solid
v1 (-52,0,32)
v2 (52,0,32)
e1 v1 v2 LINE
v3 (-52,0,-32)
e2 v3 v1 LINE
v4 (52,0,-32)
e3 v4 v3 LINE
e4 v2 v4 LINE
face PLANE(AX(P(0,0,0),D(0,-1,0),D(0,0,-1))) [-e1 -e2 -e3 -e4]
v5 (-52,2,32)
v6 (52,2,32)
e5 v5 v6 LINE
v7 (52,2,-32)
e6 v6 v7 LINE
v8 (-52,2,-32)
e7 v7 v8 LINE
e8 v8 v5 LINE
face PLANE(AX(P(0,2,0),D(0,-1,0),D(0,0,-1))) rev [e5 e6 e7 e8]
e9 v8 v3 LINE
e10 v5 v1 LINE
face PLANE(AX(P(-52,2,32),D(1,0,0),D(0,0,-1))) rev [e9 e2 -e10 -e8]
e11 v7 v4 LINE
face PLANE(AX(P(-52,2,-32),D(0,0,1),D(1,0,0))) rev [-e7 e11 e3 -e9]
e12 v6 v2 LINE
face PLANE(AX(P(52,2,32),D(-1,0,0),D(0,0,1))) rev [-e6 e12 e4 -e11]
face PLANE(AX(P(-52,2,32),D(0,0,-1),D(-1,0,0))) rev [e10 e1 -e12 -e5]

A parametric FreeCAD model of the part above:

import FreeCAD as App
import Part
import Sketcher
from FreeCAD import Vector


def add_polygon(sketch, points):
    """Adds a closed chain of lines whose ends are joined by coincident constraints."""
    first, n = sketch.GeometryCount, len(points)
    for a, b in zip(points, points[1:] + points[:1]):
        sketch.addGeometry(Part.LineSegment(App.Vector(*a, 0), App.Vector(*b, 0)), False)
    for i in range(n):
        sketch.addConstraint(Sketcher.Constraint("Coincident", first + i, 2, first + (i + 1) % n, 1))

doc = App.newDocument("Part")
body = doc.addObject("PartDesign::Body", "Body")

# Sketch on XZ plane
sketch1 = body.newObject("Sketcher::SketchObject", "Sketch")
sketch1.AttachmentSupport = (doc.getObject("XZ_Plane"), [""])
sketch1.MapMode = "FlatFace"
add_polygon(sketch1, [(-52, -32), (-52, 32), (52, 32), (52, -32)])  # lines 0-3
sketch1.addConstraint([
    Sketcher.Constraint("Vertical", 0),
    Sketcher.Constraint("Horizontal", 1),
    Sketcher.Constraint("Vertical", 2),
    Sketcher.Constraint("Horizontal", 3),
    Sketcher.Constraint("Symmetric", 0, 2, 2, 2, -1, 1),
    Sketcher.Constraint("DistanceX", 1, 1, 1, 2, 104.0),
    Sketcher.Constraint("DistanceY", 0, 1, 0, 2, 64.0),
])
pad1 = body.newObject("PartDesign::Pad", "Pad")
pad1.Profile = sketch1
pad1.Length = 2
pad1.Reversed = True

doc.recompute()
